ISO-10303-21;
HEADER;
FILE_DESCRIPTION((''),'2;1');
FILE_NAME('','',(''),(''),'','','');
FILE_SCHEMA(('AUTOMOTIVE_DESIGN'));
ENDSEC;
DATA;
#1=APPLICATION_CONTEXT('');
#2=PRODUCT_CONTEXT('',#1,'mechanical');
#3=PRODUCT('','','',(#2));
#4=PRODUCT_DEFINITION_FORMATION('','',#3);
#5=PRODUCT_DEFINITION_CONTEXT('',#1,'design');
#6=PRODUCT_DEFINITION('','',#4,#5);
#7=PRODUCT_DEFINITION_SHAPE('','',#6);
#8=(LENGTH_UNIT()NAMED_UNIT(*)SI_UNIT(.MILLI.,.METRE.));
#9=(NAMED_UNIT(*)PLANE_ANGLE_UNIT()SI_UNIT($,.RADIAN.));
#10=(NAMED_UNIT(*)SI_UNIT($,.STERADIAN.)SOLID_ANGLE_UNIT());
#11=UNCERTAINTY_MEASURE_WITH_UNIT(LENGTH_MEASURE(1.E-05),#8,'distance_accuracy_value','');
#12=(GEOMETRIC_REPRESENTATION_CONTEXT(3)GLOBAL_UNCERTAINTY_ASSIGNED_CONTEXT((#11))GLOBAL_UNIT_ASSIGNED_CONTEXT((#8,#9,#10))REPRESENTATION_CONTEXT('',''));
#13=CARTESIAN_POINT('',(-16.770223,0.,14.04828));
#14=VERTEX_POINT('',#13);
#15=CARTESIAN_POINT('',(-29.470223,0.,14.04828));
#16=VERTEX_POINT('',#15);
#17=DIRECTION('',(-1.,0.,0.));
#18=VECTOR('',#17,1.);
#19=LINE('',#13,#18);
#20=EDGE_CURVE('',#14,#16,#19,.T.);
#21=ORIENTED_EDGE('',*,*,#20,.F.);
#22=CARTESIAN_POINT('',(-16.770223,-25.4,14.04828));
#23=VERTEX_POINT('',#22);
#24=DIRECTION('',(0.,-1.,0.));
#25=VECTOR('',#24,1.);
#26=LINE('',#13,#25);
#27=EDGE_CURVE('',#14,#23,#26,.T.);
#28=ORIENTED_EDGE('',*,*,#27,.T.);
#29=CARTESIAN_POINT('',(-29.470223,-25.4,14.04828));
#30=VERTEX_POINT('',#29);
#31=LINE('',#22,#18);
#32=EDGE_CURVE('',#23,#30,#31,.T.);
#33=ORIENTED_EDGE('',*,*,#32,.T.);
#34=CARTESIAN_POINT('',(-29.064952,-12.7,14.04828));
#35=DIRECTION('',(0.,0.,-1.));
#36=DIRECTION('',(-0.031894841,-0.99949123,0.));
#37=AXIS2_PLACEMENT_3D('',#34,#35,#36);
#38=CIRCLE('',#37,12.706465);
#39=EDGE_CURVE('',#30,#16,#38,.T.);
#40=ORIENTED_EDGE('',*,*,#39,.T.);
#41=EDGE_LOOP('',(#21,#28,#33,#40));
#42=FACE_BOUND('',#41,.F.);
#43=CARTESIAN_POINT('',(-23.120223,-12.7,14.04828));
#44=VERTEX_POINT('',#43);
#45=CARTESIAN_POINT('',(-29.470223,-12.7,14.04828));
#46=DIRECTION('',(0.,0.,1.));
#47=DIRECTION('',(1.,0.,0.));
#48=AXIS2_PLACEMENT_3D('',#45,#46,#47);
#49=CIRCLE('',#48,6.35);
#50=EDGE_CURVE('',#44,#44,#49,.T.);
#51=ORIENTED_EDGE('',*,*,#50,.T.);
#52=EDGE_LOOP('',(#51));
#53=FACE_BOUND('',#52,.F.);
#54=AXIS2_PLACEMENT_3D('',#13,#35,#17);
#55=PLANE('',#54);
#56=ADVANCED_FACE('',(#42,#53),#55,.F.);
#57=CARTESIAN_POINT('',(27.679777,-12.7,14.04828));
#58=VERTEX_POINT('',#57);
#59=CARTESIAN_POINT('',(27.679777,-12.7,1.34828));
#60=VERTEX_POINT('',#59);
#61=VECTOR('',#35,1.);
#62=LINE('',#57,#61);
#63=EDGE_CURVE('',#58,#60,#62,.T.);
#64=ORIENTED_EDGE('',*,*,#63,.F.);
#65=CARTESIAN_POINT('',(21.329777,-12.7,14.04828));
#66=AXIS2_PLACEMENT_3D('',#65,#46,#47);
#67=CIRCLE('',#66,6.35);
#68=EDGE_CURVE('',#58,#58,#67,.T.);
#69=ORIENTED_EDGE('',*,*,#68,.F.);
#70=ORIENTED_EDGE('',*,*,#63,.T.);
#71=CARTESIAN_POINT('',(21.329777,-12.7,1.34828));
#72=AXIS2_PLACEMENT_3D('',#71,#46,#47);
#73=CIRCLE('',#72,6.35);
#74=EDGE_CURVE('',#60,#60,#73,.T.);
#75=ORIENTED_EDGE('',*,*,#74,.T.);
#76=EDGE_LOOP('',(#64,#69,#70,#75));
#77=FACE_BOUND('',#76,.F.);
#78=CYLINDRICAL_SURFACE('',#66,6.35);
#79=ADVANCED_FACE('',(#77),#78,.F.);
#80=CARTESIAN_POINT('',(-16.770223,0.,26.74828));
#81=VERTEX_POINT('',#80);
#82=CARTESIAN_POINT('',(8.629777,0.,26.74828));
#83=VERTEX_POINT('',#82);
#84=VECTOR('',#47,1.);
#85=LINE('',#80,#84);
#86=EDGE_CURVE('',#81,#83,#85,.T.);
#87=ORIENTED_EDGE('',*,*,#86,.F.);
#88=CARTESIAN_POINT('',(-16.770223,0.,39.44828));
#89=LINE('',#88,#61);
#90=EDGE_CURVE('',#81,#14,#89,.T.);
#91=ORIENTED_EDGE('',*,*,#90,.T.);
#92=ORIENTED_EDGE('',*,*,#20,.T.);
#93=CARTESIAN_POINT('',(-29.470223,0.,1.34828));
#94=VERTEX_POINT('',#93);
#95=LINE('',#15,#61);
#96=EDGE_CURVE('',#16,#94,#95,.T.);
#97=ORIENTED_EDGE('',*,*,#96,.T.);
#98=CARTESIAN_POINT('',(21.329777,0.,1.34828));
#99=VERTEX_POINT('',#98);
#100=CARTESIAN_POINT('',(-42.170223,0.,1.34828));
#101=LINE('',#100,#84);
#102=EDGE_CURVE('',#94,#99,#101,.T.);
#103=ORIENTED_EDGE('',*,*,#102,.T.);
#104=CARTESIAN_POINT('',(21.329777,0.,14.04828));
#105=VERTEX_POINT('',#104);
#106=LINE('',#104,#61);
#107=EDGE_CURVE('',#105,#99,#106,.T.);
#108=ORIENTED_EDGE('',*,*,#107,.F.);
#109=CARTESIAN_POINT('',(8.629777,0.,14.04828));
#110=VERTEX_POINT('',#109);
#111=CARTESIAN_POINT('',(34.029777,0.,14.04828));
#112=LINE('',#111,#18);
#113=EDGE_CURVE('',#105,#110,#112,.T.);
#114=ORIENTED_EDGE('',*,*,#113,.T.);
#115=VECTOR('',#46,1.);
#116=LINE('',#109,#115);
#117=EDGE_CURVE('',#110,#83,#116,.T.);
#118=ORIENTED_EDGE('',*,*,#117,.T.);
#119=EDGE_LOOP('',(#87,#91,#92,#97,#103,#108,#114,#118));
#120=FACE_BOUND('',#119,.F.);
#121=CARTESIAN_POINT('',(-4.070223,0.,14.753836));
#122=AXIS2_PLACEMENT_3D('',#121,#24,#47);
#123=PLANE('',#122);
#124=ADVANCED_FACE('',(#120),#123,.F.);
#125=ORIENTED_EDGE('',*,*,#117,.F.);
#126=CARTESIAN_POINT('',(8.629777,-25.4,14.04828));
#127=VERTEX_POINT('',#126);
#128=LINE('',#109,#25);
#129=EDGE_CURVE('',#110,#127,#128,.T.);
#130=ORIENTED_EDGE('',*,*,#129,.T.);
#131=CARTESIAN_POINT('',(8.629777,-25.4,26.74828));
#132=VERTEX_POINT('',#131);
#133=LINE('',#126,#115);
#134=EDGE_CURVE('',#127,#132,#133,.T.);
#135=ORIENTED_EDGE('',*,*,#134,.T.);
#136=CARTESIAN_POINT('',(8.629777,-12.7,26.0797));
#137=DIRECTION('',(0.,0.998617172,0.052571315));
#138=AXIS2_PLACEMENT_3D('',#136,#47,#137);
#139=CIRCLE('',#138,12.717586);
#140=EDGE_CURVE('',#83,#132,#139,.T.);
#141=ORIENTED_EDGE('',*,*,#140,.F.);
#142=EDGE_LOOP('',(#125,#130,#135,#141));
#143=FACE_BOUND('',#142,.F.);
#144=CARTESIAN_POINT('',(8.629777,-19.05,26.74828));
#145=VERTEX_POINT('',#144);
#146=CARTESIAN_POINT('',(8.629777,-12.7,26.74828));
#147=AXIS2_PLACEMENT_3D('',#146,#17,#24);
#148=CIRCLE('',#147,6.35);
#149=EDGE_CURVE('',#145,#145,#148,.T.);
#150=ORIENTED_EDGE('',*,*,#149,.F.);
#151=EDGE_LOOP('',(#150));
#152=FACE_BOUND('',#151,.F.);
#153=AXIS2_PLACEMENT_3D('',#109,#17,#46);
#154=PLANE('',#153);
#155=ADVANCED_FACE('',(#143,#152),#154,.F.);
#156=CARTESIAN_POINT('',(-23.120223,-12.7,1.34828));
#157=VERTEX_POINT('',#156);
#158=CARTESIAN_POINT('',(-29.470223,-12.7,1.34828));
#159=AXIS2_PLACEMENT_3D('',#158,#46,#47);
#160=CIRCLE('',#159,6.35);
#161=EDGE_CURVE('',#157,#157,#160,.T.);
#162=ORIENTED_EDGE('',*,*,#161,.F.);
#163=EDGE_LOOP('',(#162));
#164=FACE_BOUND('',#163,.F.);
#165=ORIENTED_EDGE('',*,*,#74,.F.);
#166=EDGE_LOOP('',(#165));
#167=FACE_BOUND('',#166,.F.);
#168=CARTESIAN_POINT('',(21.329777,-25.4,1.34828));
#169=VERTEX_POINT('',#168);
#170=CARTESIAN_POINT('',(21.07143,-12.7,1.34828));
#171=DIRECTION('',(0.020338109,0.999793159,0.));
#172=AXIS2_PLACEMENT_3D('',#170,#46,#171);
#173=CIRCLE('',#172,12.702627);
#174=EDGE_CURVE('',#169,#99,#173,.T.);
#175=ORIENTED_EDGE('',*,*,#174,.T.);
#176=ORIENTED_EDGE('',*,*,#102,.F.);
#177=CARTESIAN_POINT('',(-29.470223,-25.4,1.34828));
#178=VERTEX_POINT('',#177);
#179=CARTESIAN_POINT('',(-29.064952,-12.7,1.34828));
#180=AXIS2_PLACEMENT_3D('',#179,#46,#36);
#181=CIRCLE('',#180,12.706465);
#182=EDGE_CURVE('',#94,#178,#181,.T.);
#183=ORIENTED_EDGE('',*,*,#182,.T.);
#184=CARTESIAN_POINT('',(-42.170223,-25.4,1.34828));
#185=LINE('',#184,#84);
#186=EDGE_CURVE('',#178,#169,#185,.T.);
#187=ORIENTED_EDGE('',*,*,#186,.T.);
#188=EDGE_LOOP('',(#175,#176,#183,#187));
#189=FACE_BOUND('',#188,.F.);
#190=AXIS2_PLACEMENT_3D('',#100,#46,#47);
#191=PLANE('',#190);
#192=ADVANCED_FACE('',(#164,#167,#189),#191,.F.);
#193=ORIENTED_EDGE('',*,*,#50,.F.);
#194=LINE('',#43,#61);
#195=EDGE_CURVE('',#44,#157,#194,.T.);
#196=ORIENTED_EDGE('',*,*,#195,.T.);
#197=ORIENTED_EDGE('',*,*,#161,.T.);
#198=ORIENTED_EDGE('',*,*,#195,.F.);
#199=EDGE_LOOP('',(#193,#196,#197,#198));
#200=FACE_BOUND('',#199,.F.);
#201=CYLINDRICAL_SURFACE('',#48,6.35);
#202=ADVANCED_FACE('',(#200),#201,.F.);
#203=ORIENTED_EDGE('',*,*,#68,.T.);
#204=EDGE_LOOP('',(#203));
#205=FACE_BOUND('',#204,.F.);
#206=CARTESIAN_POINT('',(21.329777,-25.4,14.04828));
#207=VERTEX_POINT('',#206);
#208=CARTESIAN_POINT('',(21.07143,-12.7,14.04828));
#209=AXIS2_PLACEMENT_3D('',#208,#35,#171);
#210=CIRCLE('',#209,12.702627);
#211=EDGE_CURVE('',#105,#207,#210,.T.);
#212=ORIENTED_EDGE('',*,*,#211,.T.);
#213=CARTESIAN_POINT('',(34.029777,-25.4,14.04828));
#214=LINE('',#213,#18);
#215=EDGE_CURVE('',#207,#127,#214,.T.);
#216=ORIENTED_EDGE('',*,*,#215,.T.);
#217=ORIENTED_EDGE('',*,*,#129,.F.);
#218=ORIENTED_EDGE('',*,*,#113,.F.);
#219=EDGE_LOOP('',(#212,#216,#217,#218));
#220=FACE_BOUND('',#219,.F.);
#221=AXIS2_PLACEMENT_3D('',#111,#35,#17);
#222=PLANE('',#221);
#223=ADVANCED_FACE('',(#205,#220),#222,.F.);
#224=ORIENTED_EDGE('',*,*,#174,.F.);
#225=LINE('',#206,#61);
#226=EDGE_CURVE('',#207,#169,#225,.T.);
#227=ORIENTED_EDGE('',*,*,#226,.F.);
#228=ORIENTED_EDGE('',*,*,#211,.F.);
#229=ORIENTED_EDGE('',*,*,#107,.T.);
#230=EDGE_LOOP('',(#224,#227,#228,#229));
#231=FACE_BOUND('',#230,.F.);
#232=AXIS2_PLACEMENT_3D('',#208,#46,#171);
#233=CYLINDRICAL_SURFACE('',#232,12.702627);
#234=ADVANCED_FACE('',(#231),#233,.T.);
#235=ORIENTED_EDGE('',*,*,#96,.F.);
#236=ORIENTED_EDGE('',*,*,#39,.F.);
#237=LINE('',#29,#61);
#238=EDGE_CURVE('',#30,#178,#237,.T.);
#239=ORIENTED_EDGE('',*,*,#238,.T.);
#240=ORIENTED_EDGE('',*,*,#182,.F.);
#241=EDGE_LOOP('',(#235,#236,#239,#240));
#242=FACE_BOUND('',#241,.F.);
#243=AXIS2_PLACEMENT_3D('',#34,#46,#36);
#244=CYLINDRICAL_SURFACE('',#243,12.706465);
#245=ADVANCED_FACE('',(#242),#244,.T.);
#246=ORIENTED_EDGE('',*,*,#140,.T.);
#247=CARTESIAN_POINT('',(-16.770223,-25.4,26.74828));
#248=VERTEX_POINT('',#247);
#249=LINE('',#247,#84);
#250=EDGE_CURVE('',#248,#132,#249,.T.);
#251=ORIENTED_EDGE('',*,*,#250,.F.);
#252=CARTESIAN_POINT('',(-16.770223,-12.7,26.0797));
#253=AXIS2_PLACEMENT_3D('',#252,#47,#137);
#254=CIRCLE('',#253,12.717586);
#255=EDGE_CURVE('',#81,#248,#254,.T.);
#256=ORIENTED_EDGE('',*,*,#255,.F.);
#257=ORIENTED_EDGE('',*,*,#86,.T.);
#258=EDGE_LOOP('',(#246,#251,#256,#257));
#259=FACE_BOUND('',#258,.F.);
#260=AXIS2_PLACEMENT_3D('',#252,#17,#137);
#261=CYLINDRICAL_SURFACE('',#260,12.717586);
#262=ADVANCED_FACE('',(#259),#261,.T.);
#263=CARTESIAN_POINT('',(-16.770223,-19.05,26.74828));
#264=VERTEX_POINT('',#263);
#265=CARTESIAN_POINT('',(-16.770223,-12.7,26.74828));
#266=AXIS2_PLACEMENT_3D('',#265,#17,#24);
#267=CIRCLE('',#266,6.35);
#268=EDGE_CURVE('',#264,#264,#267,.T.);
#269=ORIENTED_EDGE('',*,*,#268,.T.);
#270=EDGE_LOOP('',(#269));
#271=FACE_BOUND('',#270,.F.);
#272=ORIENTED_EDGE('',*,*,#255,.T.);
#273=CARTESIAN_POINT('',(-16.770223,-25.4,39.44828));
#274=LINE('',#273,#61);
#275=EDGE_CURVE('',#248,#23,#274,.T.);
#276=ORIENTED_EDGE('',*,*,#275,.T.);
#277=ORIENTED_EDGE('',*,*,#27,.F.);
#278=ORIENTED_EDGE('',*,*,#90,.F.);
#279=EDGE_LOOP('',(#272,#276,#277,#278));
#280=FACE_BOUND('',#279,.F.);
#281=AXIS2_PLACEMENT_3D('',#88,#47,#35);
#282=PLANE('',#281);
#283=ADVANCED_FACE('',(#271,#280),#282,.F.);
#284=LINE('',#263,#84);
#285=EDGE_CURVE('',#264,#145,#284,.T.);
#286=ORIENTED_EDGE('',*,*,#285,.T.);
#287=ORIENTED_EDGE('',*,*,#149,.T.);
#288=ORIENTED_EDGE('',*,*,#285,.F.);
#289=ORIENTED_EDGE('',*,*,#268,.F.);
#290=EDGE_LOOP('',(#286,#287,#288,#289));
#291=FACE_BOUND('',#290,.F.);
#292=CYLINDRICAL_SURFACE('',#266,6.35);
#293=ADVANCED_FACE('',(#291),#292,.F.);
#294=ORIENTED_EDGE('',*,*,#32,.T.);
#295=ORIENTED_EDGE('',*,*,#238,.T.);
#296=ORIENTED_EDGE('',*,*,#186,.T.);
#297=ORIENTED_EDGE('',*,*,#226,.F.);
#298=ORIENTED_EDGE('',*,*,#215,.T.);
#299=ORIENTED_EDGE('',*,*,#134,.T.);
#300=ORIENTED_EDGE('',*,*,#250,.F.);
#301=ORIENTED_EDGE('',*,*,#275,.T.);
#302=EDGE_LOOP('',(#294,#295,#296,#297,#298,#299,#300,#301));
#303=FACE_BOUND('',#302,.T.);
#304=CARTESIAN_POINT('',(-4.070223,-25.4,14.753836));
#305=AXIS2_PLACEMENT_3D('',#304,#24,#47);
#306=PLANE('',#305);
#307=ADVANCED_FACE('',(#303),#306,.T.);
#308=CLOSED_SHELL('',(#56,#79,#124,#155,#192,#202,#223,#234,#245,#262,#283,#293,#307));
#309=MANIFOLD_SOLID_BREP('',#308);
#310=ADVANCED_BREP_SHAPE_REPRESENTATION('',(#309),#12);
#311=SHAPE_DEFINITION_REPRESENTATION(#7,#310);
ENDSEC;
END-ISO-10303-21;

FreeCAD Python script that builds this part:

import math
import FreeCAD as App
import Part
import Sketcher
Q = App.Units.Quantity

doc = App.newDocument("Part")
body = doc.addObject("PartDesign::Body", "Body")

# Sketch on XZ plane
sketch1 = body.newObject("Sketcher::SketchObject", "Sketch")
sketch1.AttachmentSupport = (doc.getObject("XZ_Plane"), [""])
sketch1.MapMode = "FlatFace"
sketch1.addGeometry([
    Part.LineSegment(App.Vector(-16.770223, 14.04828, 0), App.Vector(-42.170223, 14.04828, 0)),  # 0
    Part.LineSegment(App.Vector(-42.170223, 14.04828, 0), App.Vector(-42.170223, 1.34828, 0)),  # 1
    Part.LineSegment(App.Vector(-42.170223, 1.34828, 0), App.Vector(34.029777, 1.34828, 0)),  # 2
    Part.LineSegment(App.Vector(34.029777, 1.34828, 0), App.Vector(34.029777, 14.04828, 0)),  # 3
    Part.LineSegment(App.Vector(34.029777, 14.04828, 0), App.Vector(8.629777, 14.04828, 0)),  # 4
    Part.LineSegment(App.Vector(8.629777, 14.04828, 0), App.Vector(8.629777, 39.44828, 0)),  # 5
    Part.LineSegment(App.Vector(8.629777, 39.44828, 0), App.Vector(-16.770223, 39.44828, 0)),  # 6
    Part.LineSegment(App.Vector(-16.770223, 39.44828, 0), App.Vector(-16.770223, 14.04828, 0)),  # 7
], False)
sketch1.addConstraint([
    Sketcher.Constraint("Coincident", 0, 2, 1, 1),
    Sketcher.Constraint("Coincident", 1, 2, 2, 1),
    Sketcher.Constraint("Coincident", 2, 2, 3, 1),
    Sketcher.Constraint("Coincident", 3, 2, 4, 1),
    Sketcher.Constraint("Coincident", 4, 2, 5, 1),
    Sketcher.Constraint("Coincident", 5, 2, 6, 1),
    Sketcher.Constraint("Coincident", 6, 2, 7, 1),
    Sketcher.Constraint("Coincident", 7, 2, 0, 1),
    Sketcher.Constraint("Horizontal", 0),
    Sketcher.Constraint("Vertical", 1),
    Sketcher.Constraint("Horizontal", 2),
    Sketcher.Constraint("Vertical", 3),
    Sketcher.Constraint("Horizontal", 4),
    Sketcher.Constraint("Vertical", 5),
    Sketcher.Constraint("Horizontal", 6),
    Sketcher.Constraint("Vertical", 7),
    Sketcher.Constraint("Horizontal", 0, 2, 3, 2),
    Sketcher.Constraint("Equal", 0, 4),
    Sketcher.Constraint("Equal", 4, 6),
    Sketcher.Constraint("Equal", 6, 5),
    Sketcher.Constraint("DistanceX", 0, 2, 0, 1, Q("1 in")),
    Sketcher.Constraint("DistanceY", 1, 2, 1, 1, Q("0.5 in")),
    Sketcher.Constraint("DistanceY", -1, 1, 0, 2, 14.04828),
    Sketcher.Constraint("DistanceX", 0, 2, -1, 1, 42.170223),
])
pad1 = body.newObject("PartDesign::Pad", "Pad")
pad1.Profile = sketch1
pad1.Length = Q("1 in")

# Sketch on YZ plane
sketch2 = body.newObject("Sketcher::SketchObject", "Sketch001")
sketch2.AttachmentSupport = (doc.getObject("YZ_Plane"), [""])
sketch2.MapMode = "FlatFace"
sketch2.AttachmentOffset = App.Placement(App.Vector(0, 0, -16.770223), App.Rotation())
sketch2.addGeometry([
    Part.Circle(App.Vector(-12.7, 26.74828, 0), App.Vector(0, 0, 1), 6.35),  # 0
    Part.ArcOfCircle(Part.Circle(App.Vector(-12.7, 26.0797, 0), App.Vector(0, 0, 1), 12.717586), math.radians(3.013504), math.radians(176.986496)),  # 1
    Part.LineSegment(App.Vector(-25.4, 26.74828, 0), App.Vector(-25.4, 39.44828, 0)),  # 2
    Part.LineSegment(App.Vector(-25.4, 39.44828, 0), App.Vector(0, 39.44828, 0)),  # 3
    Part.LineSegment(App.Vector(0, 39.44828, 0), App.Vector(0, 26.74828, 0)),  # 4
], False)
sketch2.addConstraint([
    Sketcher.Constraint("Coincident", 1, 2, 2, 1),
    Sketcher.Constraint("Coincident", 2, 2, 3, 1),
    Sketcher.Constraint("Coincident", 3, 2, 4, 1),
    Sketcher.Constraint("Coincident", 4, 2, 1, 1),
    Sketcher.Constraint("Vertical", 2),
    Sketcher.Constraint("Horizontal", 3),
    Sketcher.Constraint("Vertical", 4),
    Sketcher.Constraint("PointOnObject", 3, 2, -2),
    Sketcher.Constraint("Horizontal", 0, 3, 1, 2),
    Sketcher.Constraint("Horizontal", 1, 2, 4, 2),
    Sketcher.Constraint("Vertical", 0, 3, 1, 3),
    Sketcher.Constraint("Diameter", 0, Q("0.5 in")),
    Sketcher.Constraint("DistanceX", 3, 1, 3, 2, Q("1 in")),
    Sketcher.Constraint("DistanceY", 2, 1, 2, 2, Q("0.5 in")),
    Sketcher.Constraint("Radius", 1, 12.717586),
    Sketcher.Constraint("DistanceY", -1, 1, 1, 3, 26.0797),
])
pocket1 = body.newObject("PartDesign::Pocket", "Pocket")
pocket1.Profile = sketch2
pocket1.Length = Q("1 in")
pocket1.Reversed = True

# Sketch on XY plane
sketch3 = body.newObject("Sketcher::SketchObject", "Sketch002")
sketch3.AttachmentSupport = (doc.getObject("XY_Plane"), [""])
sketch3.MapMode = "FlatFace"
sketch3.AttachmentOffset = App.Placement(App.Vector(0, 0, 14.04828), App.Rotation())
sketch3.addGeometry([
    Part.Circle(App.Vector(-29.470223, -12.7, 0), App.Vector(0, 0, 1), 6.35),  # 0
    Part.ArcOfCircle(Part.Circle(App.Vector(-29.064952, -12.7, 0), App.Vector(0, 0, 1), 12.706465), math.radians(91.82775), math.radians(268.17225)),  # 1
    Part.LineSegment(App.Vector(-29.470223, 0, 0), App.Vector(-42.170223, 0, 0)),  # 2
    Part.LineSegment(App.Vector(-42.170223, 0, 0), App.Vector(-42.170223, -25.4, 0)),  # 3
    Part.LineSegment(App.Vector(-42.170223, -25.4, 0), App.Vector(-29.470223, -25.4, 0)),  # 4
], False)
sketch3.addConstraint([
    Sketcher.Constraint("Coincident", 1, 1, 2, 1),
    Sketcher.Constraint("Coincident", 2, 2, 3, 1),
    Sketcher.Constraint("Coincident", 3, 2, 4, 1),
    Sketcher.Constraint("Coincident", 4, 2, 1, 2),
    Sketcher.Constraint("Horizontal", 2),
    Sketcher.Constraint("Vertical", 3),
    Sketcher.Constraint("Horizontal", 4),
    Sketcher.Constraint("PointOnObject", 1, 1, -1),
    Sketcher.Constraint("Horizontal", 0, 3, 1, 3),
    Sketcher.Constraint("Vertical", 0, 3, 1, 1),
    Sketcher.Constraint("Vertical", 1, 1, 4, 2),
    Sketcher.Constraint("Diameter", 0, Q("0.5 in")),
    Sketcher.Constraint("DistanceY", 3, 2, 3, 1, Q("1 in")),
    Sketcher.Constraint("DistanceX", 2, 2, 2, 1, Q("0.5 in")),
    Sketcher.Constraint("Radius", 1, 12.706465),
    Sketcher.Constraint("DistanceX", 0, 3, -1, 1, 29.470223),
])
pocket2 = body.newObject("PartDesign::Pocket", "Pocket001")
pocket2.Profile = sketch3
pocket2.Length = Q("1 in")

# Sketch on XY plane
sketch4 = body.newObject("Sketcher::SketchObject", "Sketch003")
sketch4.AttachmentSupport = (doc.getObject("XY_Plane"), [""])
sketch4.MapMode = "FlatFace"
sketch4.AttachmentOffset = App.Placement(App.Vector(0, 0, 14.04828), App.Rotation())
sketch4.addGeometry([
    Part.Circle(App.Vector(21.329777, -12.7, 0), App.Vector(0, 0, 1), 6.35),  # 0
    Part.ArcOfCircle(Part.Circle(App.Vector(21.07143, -12.7, 0), App.Vector(0, 0, 1), 12.702627), math.radians(-88.834632), math.radians(88.834632)),  # 1
    Part.LineSegment(App.Vector(21.329777, -25.4, 0), App.Vector(34.029777, -25.4, 0)),  # 2
    Part.LineSegment(App.Vector(34.029777, -25.4, 0), App.Vector(34.029777, 0, 0)),  # 3
    Part.LineSegment(App.Vector(34.029777, 0, 0), App.Vector(21.329777, 0, 0)),  # 4
], False)
sketch4.addConstraint([
    Sketcher.Constraint("Coincident", 1, 1, 2, 1),
    Sketcher.Constraint("Coincident", 2, 2, 3, 1),
    Sketcher.Constraint("Coincident", 3, 2, 4, 1),
    Sketcher.Constraint("Coincident", 4, 2, 1, 2),
    Sketcher.Constraint("Horizontal", 2),
    Sketcher.Constraint("Vertical", 3),
    Sketcher.Constraint("Horizontal", 4),
    Sketcher.Constraint("PointOnObject", 3, 2, -1),
    Sketcher.Constraint("Horizontal", 0, 3, 1, 3),
    Sketcher.Constraint("Vertical", 0, 3, 1, 1),
    Sketcher.Constraint("Vertical", 1, 1, 4, 2),
    Sketcher.Constraint("Diameter", 0, Q("0.5 in")),
    Sketcher.Constraint("DistanceY", 3, 1, 3, 2, Q("1 in")),
    Sketcher.Constraint("DistanceX", 2, 1, 2, 2, Q("0.5 in")),
    Sketcher.Constraint("Radius", 1, 12.702627),
    Sketcher.Constraint("DistanceX", -1, 1, 1, 3, 21.07143),
])
pocket3 = body.newObject("PartDesign::Pocket", "Pocket002")
pocket3.Profile = sketch4
pocket3.Length = Q("1 in")

doc.recompute()
